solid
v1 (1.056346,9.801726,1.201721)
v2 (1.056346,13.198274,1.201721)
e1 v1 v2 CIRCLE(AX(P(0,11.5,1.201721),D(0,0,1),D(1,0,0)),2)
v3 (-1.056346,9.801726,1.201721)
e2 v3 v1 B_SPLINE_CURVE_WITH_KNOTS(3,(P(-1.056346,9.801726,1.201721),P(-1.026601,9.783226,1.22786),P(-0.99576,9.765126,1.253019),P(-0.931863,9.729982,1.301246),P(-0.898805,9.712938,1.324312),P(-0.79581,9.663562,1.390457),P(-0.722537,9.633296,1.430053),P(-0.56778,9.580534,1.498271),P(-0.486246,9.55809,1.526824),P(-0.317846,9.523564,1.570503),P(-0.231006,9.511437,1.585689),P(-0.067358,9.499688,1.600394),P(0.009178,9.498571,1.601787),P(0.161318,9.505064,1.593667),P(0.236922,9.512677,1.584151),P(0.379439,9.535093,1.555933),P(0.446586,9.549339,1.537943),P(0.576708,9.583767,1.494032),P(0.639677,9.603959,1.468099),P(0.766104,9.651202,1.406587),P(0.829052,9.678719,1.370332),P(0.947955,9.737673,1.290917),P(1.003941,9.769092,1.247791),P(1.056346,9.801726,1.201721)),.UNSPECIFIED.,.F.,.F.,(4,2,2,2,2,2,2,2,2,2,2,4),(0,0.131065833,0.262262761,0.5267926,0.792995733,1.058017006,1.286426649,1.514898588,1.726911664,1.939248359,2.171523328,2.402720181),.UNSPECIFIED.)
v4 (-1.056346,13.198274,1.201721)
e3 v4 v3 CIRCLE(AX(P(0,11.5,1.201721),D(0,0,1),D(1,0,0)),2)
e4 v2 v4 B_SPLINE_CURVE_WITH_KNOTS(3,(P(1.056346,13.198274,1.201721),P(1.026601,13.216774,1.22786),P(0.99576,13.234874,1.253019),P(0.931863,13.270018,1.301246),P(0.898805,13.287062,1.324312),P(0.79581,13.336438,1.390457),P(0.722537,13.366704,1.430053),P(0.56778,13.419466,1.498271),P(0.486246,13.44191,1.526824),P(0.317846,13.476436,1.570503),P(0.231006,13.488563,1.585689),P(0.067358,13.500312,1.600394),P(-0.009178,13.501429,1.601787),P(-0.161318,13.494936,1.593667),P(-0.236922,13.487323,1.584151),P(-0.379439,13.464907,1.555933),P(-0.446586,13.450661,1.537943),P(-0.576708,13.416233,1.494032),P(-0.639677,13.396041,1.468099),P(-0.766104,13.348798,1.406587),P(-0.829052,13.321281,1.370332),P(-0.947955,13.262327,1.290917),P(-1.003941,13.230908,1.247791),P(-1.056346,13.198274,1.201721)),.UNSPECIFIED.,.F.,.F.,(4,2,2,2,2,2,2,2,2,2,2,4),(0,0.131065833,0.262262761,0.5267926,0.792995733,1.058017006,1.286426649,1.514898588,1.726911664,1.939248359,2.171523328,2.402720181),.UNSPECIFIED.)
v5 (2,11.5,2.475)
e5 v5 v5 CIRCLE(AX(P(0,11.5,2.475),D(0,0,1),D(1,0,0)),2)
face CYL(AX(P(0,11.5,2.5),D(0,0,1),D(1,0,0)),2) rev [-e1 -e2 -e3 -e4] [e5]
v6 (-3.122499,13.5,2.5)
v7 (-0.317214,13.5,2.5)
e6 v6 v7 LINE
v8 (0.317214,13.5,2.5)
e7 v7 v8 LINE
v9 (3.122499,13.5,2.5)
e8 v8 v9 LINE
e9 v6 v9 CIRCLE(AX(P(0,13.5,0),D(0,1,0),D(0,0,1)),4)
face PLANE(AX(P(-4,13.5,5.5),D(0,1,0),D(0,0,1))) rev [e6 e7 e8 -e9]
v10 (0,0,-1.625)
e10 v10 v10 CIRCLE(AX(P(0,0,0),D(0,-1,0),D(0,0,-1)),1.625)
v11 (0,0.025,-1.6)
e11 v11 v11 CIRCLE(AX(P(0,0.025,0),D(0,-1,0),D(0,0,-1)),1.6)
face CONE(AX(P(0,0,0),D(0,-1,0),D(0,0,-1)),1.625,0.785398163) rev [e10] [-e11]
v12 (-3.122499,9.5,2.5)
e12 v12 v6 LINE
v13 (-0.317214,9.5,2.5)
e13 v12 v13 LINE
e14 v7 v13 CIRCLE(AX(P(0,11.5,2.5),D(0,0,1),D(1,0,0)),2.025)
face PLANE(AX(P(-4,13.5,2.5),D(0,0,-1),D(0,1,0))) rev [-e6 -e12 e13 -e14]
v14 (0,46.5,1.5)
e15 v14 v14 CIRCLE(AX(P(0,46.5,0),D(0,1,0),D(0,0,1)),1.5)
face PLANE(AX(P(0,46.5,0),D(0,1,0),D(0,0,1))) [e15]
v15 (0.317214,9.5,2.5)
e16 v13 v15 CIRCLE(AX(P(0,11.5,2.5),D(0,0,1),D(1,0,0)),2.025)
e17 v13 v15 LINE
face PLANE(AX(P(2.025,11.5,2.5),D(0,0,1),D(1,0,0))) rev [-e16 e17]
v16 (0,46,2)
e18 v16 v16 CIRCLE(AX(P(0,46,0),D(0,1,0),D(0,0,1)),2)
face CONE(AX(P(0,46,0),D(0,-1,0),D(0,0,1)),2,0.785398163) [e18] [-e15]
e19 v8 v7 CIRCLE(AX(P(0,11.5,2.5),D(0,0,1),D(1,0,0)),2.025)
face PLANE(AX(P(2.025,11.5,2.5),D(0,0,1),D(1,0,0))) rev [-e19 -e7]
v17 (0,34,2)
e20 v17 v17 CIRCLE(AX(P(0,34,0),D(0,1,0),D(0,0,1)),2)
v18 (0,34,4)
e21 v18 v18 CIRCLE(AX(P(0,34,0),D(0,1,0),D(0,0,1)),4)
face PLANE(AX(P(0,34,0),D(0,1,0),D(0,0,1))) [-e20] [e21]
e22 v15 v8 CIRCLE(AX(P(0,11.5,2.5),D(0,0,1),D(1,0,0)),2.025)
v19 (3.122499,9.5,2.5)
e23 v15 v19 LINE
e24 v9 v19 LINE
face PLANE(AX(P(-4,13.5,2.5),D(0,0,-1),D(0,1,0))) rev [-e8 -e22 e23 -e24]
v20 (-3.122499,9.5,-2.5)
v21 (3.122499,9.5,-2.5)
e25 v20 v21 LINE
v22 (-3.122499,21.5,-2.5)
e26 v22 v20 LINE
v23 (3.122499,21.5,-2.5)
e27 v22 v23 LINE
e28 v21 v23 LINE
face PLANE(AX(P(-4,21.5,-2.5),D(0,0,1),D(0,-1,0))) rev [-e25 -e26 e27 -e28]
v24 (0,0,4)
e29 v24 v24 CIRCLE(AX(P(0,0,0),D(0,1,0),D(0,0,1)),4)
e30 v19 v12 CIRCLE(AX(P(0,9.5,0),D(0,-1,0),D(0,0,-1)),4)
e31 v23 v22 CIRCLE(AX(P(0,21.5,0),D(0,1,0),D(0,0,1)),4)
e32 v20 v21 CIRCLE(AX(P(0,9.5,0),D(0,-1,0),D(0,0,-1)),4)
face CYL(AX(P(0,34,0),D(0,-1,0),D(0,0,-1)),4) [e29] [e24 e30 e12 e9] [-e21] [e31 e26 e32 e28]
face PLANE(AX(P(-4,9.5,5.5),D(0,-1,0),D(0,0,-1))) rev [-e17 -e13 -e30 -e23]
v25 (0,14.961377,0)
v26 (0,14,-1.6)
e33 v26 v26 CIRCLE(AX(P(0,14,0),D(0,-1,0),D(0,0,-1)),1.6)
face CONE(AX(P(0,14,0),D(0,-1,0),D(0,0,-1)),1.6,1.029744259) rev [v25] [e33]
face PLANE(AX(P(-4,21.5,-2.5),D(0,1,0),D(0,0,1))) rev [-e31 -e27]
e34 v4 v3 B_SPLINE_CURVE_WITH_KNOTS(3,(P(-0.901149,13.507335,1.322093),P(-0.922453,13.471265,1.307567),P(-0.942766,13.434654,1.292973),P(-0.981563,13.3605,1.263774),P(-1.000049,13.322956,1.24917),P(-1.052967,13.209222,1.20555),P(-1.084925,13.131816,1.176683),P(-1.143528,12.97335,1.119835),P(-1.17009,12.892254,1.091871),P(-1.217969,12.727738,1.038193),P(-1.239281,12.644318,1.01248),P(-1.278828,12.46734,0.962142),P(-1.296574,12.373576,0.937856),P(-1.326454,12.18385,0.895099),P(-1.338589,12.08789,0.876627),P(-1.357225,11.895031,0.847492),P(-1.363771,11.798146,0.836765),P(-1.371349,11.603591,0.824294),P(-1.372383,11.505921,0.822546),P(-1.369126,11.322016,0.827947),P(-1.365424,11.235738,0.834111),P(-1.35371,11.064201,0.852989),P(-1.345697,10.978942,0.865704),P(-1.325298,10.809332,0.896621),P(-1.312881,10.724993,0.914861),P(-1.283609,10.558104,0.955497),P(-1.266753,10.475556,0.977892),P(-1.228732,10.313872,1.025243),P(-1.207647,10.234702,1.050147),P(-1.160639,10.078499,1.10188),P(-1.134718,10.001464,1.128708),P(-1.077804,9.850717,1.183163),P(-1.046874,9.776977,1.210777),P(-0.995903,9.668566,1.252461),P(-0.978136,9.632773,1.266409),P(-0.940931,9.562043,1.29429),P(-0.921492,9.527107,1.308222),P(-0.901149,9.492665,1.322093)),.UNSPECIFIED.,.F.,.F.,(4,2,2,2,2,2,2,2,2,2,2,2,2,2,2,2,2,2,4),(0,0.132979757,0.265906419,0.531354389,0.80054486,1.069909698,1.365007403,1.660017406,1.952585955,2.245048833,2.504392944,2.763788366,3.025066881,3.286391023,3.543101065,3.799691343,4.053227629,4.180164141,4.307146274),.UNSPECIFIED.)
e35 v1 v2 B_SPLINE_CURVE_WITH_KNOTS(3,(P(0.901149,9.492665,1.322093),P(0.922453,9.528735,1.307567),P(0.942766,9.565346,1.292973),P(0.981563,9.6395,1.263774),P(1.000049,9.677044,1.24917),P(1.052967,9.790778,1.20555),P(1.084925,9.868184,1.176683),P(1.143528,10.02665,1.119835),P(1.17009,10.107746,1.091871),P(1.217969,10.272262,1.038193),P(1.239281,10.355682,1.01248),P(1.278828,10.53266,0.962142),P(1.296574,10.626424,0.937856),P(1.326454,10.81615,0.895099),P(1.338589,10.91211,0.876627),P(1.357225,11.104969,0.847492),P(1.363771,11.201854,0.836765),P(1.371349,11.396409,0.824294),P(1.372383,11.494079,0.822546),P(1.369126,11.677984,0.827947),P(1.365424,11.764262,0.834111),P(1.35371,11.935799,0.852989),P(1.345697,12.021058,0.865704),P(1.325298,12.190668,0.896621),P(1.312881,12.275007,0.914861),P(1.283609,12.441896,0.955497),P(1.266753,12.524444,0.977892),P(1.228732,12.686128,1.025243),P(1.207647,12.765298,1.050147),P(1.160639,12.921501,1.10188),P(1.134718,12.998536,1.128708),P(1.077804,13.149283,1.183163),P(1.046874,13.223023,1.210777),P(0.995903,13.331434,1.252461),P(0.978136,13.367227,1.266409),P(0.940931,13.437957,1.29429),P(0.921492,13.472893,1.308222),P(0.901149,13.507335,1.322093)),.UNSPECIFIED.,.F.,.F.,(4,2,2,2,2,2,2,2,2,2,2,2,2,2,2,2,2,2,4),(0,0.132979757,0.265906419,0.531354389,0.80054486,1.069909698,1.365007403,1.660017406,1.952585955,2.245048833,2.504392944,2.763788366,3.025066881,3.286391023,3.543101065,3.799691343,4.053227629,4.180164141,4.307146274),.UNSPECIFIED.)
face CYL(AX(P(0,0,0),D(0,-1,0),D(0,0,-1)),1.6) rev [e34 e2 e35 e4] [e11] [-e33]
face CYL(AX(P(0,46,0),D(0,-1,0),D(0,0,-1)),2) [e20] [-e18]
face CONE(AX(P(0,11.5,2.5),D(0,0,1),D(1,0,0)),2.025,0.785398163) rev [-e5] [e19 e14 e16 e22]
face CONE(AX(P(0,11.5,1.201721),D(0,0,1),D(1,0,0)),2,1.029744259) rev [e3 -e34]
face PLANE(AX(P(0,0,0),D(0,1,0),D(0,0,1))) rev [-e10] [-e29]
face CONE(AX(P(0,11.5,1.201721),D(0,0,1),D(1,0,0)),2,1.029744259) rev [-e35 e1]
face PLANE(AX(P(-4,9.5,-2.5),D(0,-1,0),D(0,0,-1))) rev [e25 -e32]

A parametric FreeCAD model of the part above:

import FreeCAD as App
import Part
import Sketcher
Q = App.Units.Quantity

doc = App.newDocument("Part")
body = doc.addObject("PartDesign::Body", "Body")

# Sketch on XZ plane
sketch1 = body.newObject("Sketcher::SketchObject", "Sketch")
sketch1.AttachmentSupport = (doc.getObject("XZ_Plane"), [""])
sketch1.MapMode = "FlatFace"
sketch1.addGeometry(Part.Circle(App.Vector(0, 0, 0), App.Vector(0, 0, 1), 4), False)
sketch1.addConstraint([
    Sketcher.Constraint("Coincident", 0, 3, -1, 1),
    Sketcher.Constraint("Diameter", 0, 8.0),
])
pad1 = body.newObject("PartDesign::Pad", "Pad")
pad1.Profile = sketch1
pad1.Length = 34
pad1.Reversed = True

# Sketch on XZ plane
sketch2 = body.newObject("Sketcher::SketchObject", "Sketch001")
sketch2.AttachmentSupport = (doc.getObject("XZ_Plane"), [""])
sketch2.MapMode = "FlatFace"
sketch2.addGeometry(Part.Circle(App.Vector(0, 0, 0), App.Vector(0, 0, 1), 1.6), False)
sketch2.addConstraint([
    Sketcher.Constraint("Coincident", 0, 3, -1, 1),
    Sketcher.Constraint("Diameter", 0, 3.2),
])
doc.recompute()
hole = body.newObject("PartDesign::Hole", "Hole")
hole.Profile = sketch2
hole.ThreadType = "None"
hole.Diameter = 3.2
hole.DepthType = "Dimension"
hole.Depth = 14
hole.DrillPoint = "Angled"
hole.DrillPointAngle = 118
hole.HoleCutType = "Countersink"
hole.HoleCutDiameter = 3.25
hole.HoleCutCountersinkAngle = 90

# Sketch on YZ plane
sketch3 = body.newObject("Sketcher::SketchObject", "Sketch002")
sketch3.AttachmentSupport = (doc.getObject("YZ_Plane"), [""])
sketch3.MapMode = "FlatFace"
sketch3.addGeometry([
    Part.LineSegment(App.Vector(13.5, 5.5, 0), App.Vector(9.5, 5.5, 0)),  # 0
    Part.LineSegment(App.Vector(9.5, 5.5, 0), App.Vector(9.5, 2.5, 0)),  # 1
    Part.LineSegment(App.Vector(9.5, 2.5, 0), App.Vector(13.5, 2.5, 0)),  # 2
    Part.LineSegment(App.Vector(13.5, 2.5, 0), App.Vector(13.5, 5.5, 0)),  # 3
    Part.LineSegment(App.Vector(21.5, -2.5, 0), App.Vector(9.5, -2.5, 0)),  # 4
    Part.LineSegment(App.Vector(9.5, -2.5, 0), App.Vector(9.5, -5.5, 0)),  # 5
    Part.LineSegment(App.Vector(9.5, -5.5, 0), App.Vector(21.5, -5.5, 0)),  # 6
    Part.LineSegment(App.Vector(21.5, -5.5, 0), App.Vector(21.5, -2.5, 0)),  # 7
], False)
sketch3.addConstraint([
    Sketcher.Constraint("Coincident", 0, 2, 1, 1),
    Sketcher.Constraint("Coincident", 1, 2, 2, 1),
    Sketcher.Constraint("Coincident", 2, 2, 3, 1),
    Sketcher.Constraint("Coincident", 3, 2, 0, 1),
    Sketcher.Constraint("Coincident", 4, 2, 5, 1),
    Sketcher.Constraint("Coincident", 5, 2, 6, 1),
    Sketcher.Constraint("Coincident", 6, 2, 7, 1),
    Sketcher.Constraint("Coincident", 7, 2, 4, 1),
    Sketcher.Constraint("Horizontal", 0),
    Sketcher.Constraint("Vertical", 1),
    Sketcher.Constraint("Horizontal", 2),
    Sketcher.Constraint("Vertical", 3),
    Sketcher.Constraint("Horizontal", 4),
    Sketcher.Constraint("Vertical", 5),
    Sketcher.Constraint("Horizontal", 6),
    Sketcher.Constraint("Vertical", 7),
    Sketcher.Constraint("Symmetric", 1, 2, 4, 2, -1),
    Sketcher.Constraint("Equal", 3, 5),
    Sketcher.Constraint("DistanceX", 0, 2, 0, 1, 4.0),
    Sketcher.Constraint("DistanceX", 4, 2, 4, 1, 12.0),
    Sketcher.Constraint("DistanceY", 1, 2, 1, 1, 3.0),
    Sketcher.Constraint("DistanceY", 4, 2, 1, 2, 5.0),
    Sketcher.Constraint("DistanceX", -1, 1, 0, 2, 9.5),
])
pocket1 = body.newObject("PartDesign::Pocket", "Pocket")
pocket1.Profile = sketch3
pocket1.Length = 8
pocket1.Midplane = True

# Sketch on YZ plane
sketch4 = body.newObject("Sketcher::SketchObject", "Sketch003")
sketch4.AttachmentSupport = (doc.getObject("YZ_Plane"), [""])
sketch4.MapMode = "FlatFace"
sketch4.addGeometry([
    Part.LineSegment(App.Vector(11.5, 0, 0), App.Vector(11.5, 2.5, 0)),  # 0
    Part.LineSegment(App.Vector(11.5, 2.5, 0), App.Vector(9.475, 2.5, 0)),  # 1
    Part.LineSegment(App.Vector(9.475, 2.5, 0), App.Vector(9.5, 2.475, 0)),  # 2
    Part.LineSegment(App.Vector(9.5, 2.475, 0), App.Vector(9.5, 1.202, 0)),  # 3
    Part.LineSegment(App.Vector(9.5, 1.202, 0), App.Vector(11.5, 0, 0)),  # 4
], False)
sketch4.addGeometry(Part.LineSegment(App.Vector(11.5, 2.5, 0), App.Vector(11.5, 0, 0)), True)  # axis
sketch4.addConstraint([
    Sketcher.Constraint("Coincident", 0, 2, 1, 1),
    Sketcher.Constraint("Coincident", 1, 2, 2, 1),
    Sketcher.Constraint("Coincident", 2, 2, 3, 1),
    Sketcher.Constraint("Coincident", 3, 2, 4, 1),
    Sketcher.Constraint("Coincident", 4, 2, 0, 1),
    Sketcher.Constraint("Vertical", 0),
    Sketcher.Constraint("Horizontal", 1),
    Sketcher.Constraint("Vertical", 3),
    Sketcher.Constraint("Vertical", 5),
    Sketcher.Constraint("Coincident", 5, 1, 0, 2),
    Sketcher.Constraint("PointOnObject", 4, 2, -1),
    Sketcher.Constraint("PointOnObject", 5, 2, -1),
    Sketcher.Constraint("Angle", 2, Q("-45 deg")),
    Sketcher.Constraint("Angle", 4, Q("-31 deg")),
    Sketcher.Constraint("DistanceY", 0, 1, 0, 2, 2.5),
    Sketcher.Constraint("DistanceX", 2, 2, 0, 2, 2.0),
    Sketcher.Constraint("DistanceX", -1, 1, 0, 2, 11.5),
    Sketcher.Constraint("DistanceX", 1, 2, 1, 1, 2.025),
])
groove = body.newObject("PartDesign::Groove", "Groove")
groove.Profile = sketch4
groove.ReferenceAxis = (sketch4, ["Axis0"])
groove.Angle = 360

# Sketch on XZ plane
sketch5 = body.newObject("Sketcher::SketchObject", "Sketch004")
sketch5.AttachmentSupport = (doc.getObject("XZ_Plane"), [""])
sketch5.MapMode = "FlatFace"
sketch5.AttachmentOffset = App.Placement(App.Vector(0, 0, -34), App.Rotation())
sketch5.addGeometry(Part.Circle(App.Vector(0, 0, 0), App.Vector(0, 0, 1), 2), False)
sketch5.addConstraint([
    Sketcher.Constraint("Coincident", 0, 3, -1, 1),
    Sketcher.Constraint("Diameter", 0, 4.0),
])
pad2 = body.newObject("PartDesign::Pad", "Pad001")
pad2.Profile = sketch5
pad2.Length = 12
pad2.Reversed = True

# Sketch on XZ plane
sketch6 = body.newObject("Sketcher::SketchObject", "Sketch005")
sketch6.AttachmentSupport = (doc.getObject("XZ_Plane"), [""])
sketch6.MapMode = "FlatFace"
sketch6.AttachmentOffset = App.Placement(App.Vector(0, 0, -46), App.Rotation())
sketch6.addGeometry(Part.Circle(App.Vector(0, 0, 0), App.Vector(0, 0, 1), 2), False)
sketch6.addConstraint([
    Sketcher.Constraint("Coincident", 0, 3, -1, 1),
    Sketcher.Constraint("Diameter", 0, 4.0),
])
pad3 = body.newObject("PartDesign::Pad", "Pad002")
pad3.Profile = sketch6
pad3.Length = 0.5
pad3.Reversed = True
pad3.TaperAngle = -45

doc.recompute()
